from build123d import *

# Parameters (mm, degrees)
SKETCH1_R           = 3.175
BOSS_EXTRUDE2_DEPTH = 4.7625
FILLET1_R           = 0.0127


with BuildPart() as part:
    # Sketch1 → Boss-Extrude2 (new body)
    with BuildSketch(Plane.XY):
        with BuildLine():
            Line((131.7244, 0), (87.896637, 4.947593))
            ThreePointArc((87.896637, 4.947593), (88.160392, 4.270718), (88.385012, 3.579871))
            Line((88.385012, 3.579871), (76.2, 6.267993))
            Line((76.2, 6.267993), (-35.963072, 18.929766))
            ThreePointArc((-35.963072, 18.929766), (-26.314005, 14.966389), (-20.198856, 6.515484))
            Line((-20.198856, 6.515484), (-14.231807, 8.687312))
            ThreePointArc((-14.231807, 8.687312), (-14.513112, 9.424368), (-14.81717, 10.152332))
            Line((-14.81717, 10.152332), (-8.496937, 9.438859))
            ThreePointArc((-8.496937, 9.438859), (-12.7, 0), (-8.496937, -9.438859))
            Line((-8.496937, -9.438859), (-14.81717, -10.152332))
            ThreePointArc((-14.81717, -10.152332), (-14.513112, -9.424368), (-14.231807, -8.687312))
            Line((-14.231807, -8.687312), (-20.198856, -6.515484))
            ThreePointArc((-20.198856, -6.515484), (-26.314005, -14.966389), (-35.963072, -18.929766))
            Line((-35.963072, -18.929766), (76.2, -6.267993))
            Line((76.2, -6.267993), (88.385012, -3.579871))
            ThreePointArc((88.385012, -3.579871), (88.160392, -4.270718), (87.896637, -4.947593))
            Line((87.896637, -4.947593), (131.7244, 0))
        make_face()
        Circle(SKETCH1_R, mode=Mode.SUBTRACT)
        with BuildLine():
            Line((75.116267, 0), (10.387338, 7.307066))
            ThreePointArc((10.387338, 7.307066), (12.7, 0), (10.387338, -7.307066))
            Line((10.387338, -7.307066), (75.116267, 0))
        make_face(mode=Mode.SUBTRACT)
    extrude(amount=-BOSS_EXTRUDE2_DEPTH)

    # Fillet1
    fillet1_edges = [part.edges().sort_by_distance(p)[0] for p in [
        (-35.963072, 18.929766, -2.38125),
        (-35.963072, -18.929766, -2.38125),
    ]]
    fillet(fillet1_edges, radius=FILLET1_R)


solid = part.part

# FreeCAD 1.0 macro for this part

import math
import FreeCAD as App
import Part
import Sketcher
from FreeCAD import Vector
Q = App.Units.Quantity


def edges_at(feature, points):
    """Names of the edges that pass closest to the given points."""
    edges = feature.Shape.Edges
    near = lambda p: min(range(len(edges)), key=lambda i: edges[i].distToShape(Part.Vertex(*p))[0])
    return sorted({f"Edge{near(p) + 1}" for p in points})

doc = App.newDocument("Part")
body = doc.addObject("PartDesign::Body", "Body")

# Sketch on XY plane
sketch1 = body.newObject("Sketcher::SketchObject", "Sketch")
sketch1.AttachmentSupport = (doc.getObject("XY_Plane"), [""])
sketch1.MapMode = "FlatFace"
sketch1.addGeometry([
    Part.LineSegment(Vector(131.7244, 0, 0), Vector(87.896637, 4.947593, 0)),  # 0
    Part.ArcOfCircle(Part.Circle(Vector(76.200347, 0.000124, 0), Vector(0, 0, 1), 12.699632), math.radians(16.372323), math.radians(22.928107)),  # 1
    Part.LineSegment(Vector(88.385012, 3.579871, 0), Vector(76.2, 6.267993, 0)),  # 2
    Part.LineSegment(Vector(76.2, 6.267993, 0), Vector(-35.963072, 18.929766, 0)),  # 3
    Part.ArcOfCircle(Part.Circle(Vector(-38.100002, -0.000002, 0), Vector(0, 0, 1), 19.050002), math.radians(20.000005), math.radians(83.559302)),  # 4
    Part.LineSegment(Vector(-20.198856, 6.515484, 0), Vector(-14.231807, 8.687312, 0)),  # 5
    Part.ArcOfCircle(Part.Circle(Vector(-38.100933, -0.000376, 0), Vector(0, 0, 1), 25.401005), math.radians(20.000077), math.radians(23.559243)),  # 6
    Part.LineSegment(Vector(-14.81717, 10.152332, 0), Vector(-8.496937, 9.438859, 0)),  # 7
    Part.ArcOfCircle(Part.Circle(Vector(0, 0, 0), Vector(0, 0, 1), 12.7), math.radians(131.993797), math.radians(228.006203)),  # 8
    Part.LineSegment(Vector(-8.496937, -9.438859, 0), Vector(-14.81717, -10.152332, 0)),  # 9
    Part.ArcOfCircle(Part.Circle(Vector(-38.100933, 0.000376, 0), Vector(0, 0, 1), 25.401005), math.radians(-23.559243), math.radians(-20.000077)),  # 10
    Part.LineSegment(Vector(-14.231807, -8.687312, 0), Vector(-20.198856, -6.515484, 0)),  # 11
    Part.ArcOfCircle(Part.Circle(Vector(-38.100002, 0.000002, 0), Vector(0, 0, 1), 19.050002), math.radians(-83.559302), math.radians(-20.000005)),  # 12
    Part.LineSegment(Vector(-35.963072, -18.929766, 0), Vector(76.2, -6.267993, 0)),  # 13
    Part.LineSegment(Vector(76.2, -6.267993, 0), Vector(88.385012, -3.579871, 0)),  # 14
    Part.ArcOfCircle(Part.Circle(Vector(76.200347, -0.000124, 0), Vector(0, 0, 1), 12.699632), math.radians(-22.928107), math.radians(-16.372323)),  # 15
    Part.LineSegment(Vector(87.896637, -4.947593, 0), Vector(131.7244, 0, 0)),  # 16
    Part.Circle(Vector(0, 0, 0), Vector(0, 0, 1), 3.175),  # 17
    Part.LineSegment(Vector(10.387338, 7.307066, 0), Vector(75.116267, 0, 0)),  # 18
    Part.LineSegment(Vector(75.116267, 0, 0), Vector(10.387338, -7.307066, 0)),  # 19
    Part.ArcOfCircle(Part.Circle(Vector(-0.000001, 0, 0), Vector(0, 0, 1), 12.700001), math.radians(-35.124811), math.radians(35.124811)),  # 20
], False)
sketch1.addConstraint([
    Sketcher.Constraint("Coincident", 0, 2, 1, 2),
    Sketcher.Constraint("Coincident", 1, 1, 2, 1),
    Sketcher.Constraint("Coincident", 2, 2, 3, 1),
    Sketcher.Constraint("Tangent", 3, 2, 4, 2),
    Sketcher.Constraint("Coincident", 4, 1, 5, 1),
    Sketcher.Constraint("Coincident", 5, 2, 6, 1),
    Sketcher.Constraint("Coincident", 6, 2, 7, 1),
    Sketcher.Constraint("Coincident", 7, 2, 8, 1),
    Sketcher.Constraint("Coincident", 8, 2, 9, 1),
    Sketcher.Constraint("Coincident", 9, 2, 10, 1),
    Sketcher.Constraint("Coincident", 10, 2, 11, 1),
    Sketcher.Constraint("Coincident", 11, 2, 12, 2),
    Sketcher.Constraint("Tangent", 12, 1, 13, 1),
    Sketcher.Constraint("Coincident", 13, 2, 14, 1),
    Sketcher.Constraint("Coincident", 14, 2, 15, 2),
    Sketcher.Constraint("Coincident", 15, 1, 16, 1),
    Sketcher.Constraint("Coincident", 16, 2, 0, 1),
    Sketcher.Constraint("Coincident", 18, 2, 19, 1),
    Sketcher.Constraint("Coincident", 19, 2, 20, 1),
    Sketcher.Constraint("Coincident", 20, 2, 18, 1),
    Sketcher.Constraint("Coincident", 8, 3, -1, 1),
    Sketcher.Constraint("Coincident", 17, 3, -1, 1),
    Sketcher.Constraint("Coincident", 20, 3, -1, 1),
    Sketcher.Constraint("Coincident", 12, 3, 4, 3),
    Sketcher.Constraint("Equal", 6, 10),
    Sketcher.Constraint("Equal", 4, 12),
    Sketcher.Constraint("Equal", 1, 15),
    Sketcher.Constraint("Equal", 8, 20),
    Sketcher.Constraint("Symmetric", 6, 3, 10, 3, -1),
    Sketcher.Constraint("Symmetric", 1, 3, 15, 3, -1),
    Sketcher.Constraint("Symmetric", 4, 1, 11, 2, -1),
    Sketcher.Constraint("Symmetric", 2, 2, 13, 2, -1),
    Sketcher.Constraint("PointOnObject", 16, 2, -1),
    Sketcher.Constraint("PointOnObject", 18, 2, -1),
    Sketcher.Constraint("Parallel", 0, 3),
    Sketcher.Constraint("Parallel", 3, 7),
    Sketcher.Constraint("Parallel", 9, 13),
    Sketcher.Constraint("Parallel", 13, 16),
    Sketcher.Constraint("Parallel", 7, 18),
    Sketcher.Constraint("Parallel", 16, 19),
    Sketcher.Constraint("Vertical", 7, 2, 8, 2),
    Sketcher.Constraint("Vertical", 5, 2, 10, 2),
    Sketcher.Constraint("Vertical", 1, 1, 14, 2),
    Sketcher.Constraint("Radius", 8, Q("0.5 in")),
    Sketcher.Constraint("Diameter", 17, Q("0.25 in")),
    Sketcher.Constraint("Radius", 4, Q("0.7500001 in")),
    Sketcher.Constraint("DistanceX", -1, 1, 2, 2, Q("3 in")),
    Sketcher.Constraint("Angle", 5, Q("19.999998 deg")),
    Sketcher.Constraint("DistanceX", 4, 3, -1, 1, Q("1.5000001 in")),
    Sketcher.Constraint("Distance", 5, Q("0.25 in")),
    Sketcher.Constraint("DistanceX", -1, 1, 16, 2, Q("5.186 in")),
    Sketcher.Constraint("Radius", 1, 12.699632),
    Sketcher.Constraint("Radius", 6, 25.401005),
    Sketcher.Constraint("Distance", 2, 12.478001),
    Sketcher.Constraint("DistanceY", 6, 3, 1, 3, 0.0005),
    Sketcher.Constraint("DistanceY", 0, 2, 2, 2, 1.3204),
    Sketcher.Constraint("Distance", 0, 44.106139),
    Sketcher.Constraint("Distance", 18, 65.14006),
    Sketcher.Constraint("DistanceX", -1, 1, 1, 1, 88.385012),
    Sketcher.Constraint("DistanceX", 6, 2, -1, 1, 14.81717),
    Sketcher.Constraint("DistanceY", 12, 3, 4, 1, 6.515482),
])
pad1 = body.newObject("PartDesign::Pad", "Pad")
pad1.Profile = sketch1
pad1.Length = Q("0.1875 in")
pad1.Reversed = True
doc.recompute()

fillet = body.newObject("PartDesign::Fillet", "Fillet")
fillet.Base = (pad1, edges_at(pad1, [(-35.963, 18.93, -2.381), (-35.963, -18.93, -2.381)]))
fillet.Radius = Q("0.0005 in")

doc.recompute()
